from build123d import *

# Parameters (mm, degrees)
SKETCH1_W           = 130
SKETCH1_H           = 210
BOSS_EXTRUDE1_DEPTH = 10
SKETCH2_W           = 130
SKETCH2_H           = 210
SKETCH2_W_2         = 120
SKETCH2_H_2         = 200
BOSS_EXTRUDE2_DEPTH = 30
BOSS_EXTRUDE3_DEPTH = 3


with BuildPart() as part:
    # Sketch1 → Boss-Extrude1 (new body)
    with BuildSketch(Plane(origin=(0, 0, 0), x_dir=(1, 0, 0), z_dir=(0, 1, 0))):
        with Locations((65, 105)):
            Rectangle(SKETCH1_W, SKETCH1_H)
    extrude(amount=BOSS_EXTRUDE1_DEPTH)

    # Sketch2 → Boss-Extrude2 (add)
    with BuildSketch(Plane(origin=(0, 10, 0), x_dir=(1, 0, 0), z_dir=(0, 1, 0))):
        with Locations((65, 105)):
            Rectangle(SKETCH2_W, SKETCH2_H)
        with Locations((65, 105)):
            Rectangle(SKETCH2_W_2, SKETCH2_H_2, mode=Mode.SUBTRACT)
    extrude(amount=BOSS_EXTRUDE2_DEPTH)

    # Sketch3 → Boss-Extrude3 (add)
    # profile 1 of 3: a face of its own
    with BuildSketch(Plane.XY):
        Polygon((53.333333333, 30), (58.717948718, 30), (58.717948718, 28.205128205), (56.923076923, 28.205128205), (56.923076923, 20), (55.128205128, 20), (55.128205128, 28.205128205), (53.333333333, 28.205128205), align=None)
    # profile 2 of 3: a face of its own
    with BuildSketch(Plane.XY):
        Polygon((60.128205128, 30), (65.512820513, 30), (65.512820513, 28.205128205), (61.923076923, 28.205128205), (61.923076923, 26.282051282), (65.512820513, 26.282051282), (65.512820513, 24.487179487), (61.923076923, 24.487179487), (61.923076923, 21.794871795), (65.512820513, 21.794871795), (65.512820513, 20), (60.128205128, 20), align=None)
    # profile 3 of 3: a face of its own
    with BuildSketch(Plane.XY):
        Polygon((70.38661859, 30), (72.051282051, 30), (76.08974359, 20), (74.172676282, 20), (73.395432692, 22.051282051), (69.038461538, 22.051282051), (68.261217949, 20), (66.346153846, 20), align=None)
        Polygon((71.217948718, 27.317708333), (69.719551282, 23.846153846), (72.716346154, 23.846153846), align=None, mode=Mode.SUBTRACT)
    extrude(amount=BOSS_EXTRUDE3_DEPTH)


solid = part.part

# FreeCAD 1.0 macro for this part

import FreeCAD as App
import Part
import Sketcher
Q = App.Units.Quantity


def add_polygon(sketch, points):
    """Adds a closed chain of lines whose ends are joined by coincident constraints."""
    first, n = sketch.GeometryCount, len(points)
    for a, b in zip(points, points[1:] + points[:1]):
        sketch.addGeometry(Part.LineSegment(App.Vector(*a, 0), App.Vector(*b, 0)), False)
    for i in range(n):
        sketch.addConstraint(Sketcher.Constraint("Coincident", first + i, 2, first + (i + 1) % n, 1))

doc = App.newDocument("Part")
params = doc.addObject("Spreadsheet::Sheet", "Params")
for row, (alias, value) in enumerate([
    ("sketch1_width", "130 mm"),
    ("sketch1_height", "210 mm"),
    ("pad1_length", "10 mm"),
    ("sketch2_width", "130 mm"),
    ("sketch2_width2", "120 mm"),
    ("sketch2_height", "210 mm"),
    ("sketch2_height2", "200 mm"),
    ("pad2_length", "30 mm"),
    ("sketch3_height", "10 mm"),
    ("pad3_length", "3 mm"),
], start=1):
    params.set(f"A{row}", alias)
    params.set(f"B{row}", "=" + value)
    params.setAlias(f"B{row}", alias)

body = doc.addObject("PartDesign::Body", "Body")

sketch1 = body.newObject("Sketcher::SketchObject", "Sketch")
sketch1.AttachmentSupport = (doc.getObject("XZ_Plane"), [""])
sketch1.MapMode = "FlatFace"
add_polygon(sketch1, [(0, -210), (0, 0), (130, 0), (130, -210)])
sketch1.addConstraint([
    Sketcher.Constraint("Vertical", 0),
    Sketcher.Constraint("Horizontal", 1),
    Sketcher.Constraint("Vertical", 2),
    Sketcher.Constraint("Horizontal", 3),
    Sketcher.Constraint("Coincident", 0, 2, -1, 1),
    Sketcher.Constraint("DistanceX", 1, 1, 1, 2, Q("130 mm")),
    Sketcher.Constraint("DistanceY", 0, 1, 0, 2, Q("210 mm")),
])
sketch1.setExpression("Constraints[9]", "Params.sketch1_width")
sketch1.setExpression("Constraints[10]", "Params.sketch1_height")
pad1 = body.newObject("PartDesign::Pad", "Pad")
pad1.Profile = sketch1
pad1.setExpression("Length", "Params.pad1_length")
pad1.Reversed = True

sketch2 = body.newObject("Sketcher::SketchObject", "Sketch001")
sketch2.AttachmentSupport = (doc.getObject("XZ_Plane"), [""])
sketch2.MapMode = "FlatFace"
sketch2.AttachmentOffset = App.Placement(App.Vector(0, 0, -10), App.Rotation())
add_polygon(sketch2, [(0, -210), (0, 0), (130, 0), (130, -210)])
add_polygon(sketch2, [(125, -5), (5, -5), (5, -205), (125, -205)])
sketch2.addConstraint([
    Sketcher.Constraint("Vertical", 0),
    Sketcher.Constraint("Horizontal", 1),
    Sketcher.Constraint("Vertical", 2),
    Sketcher.Constraint("Horizontal", 3),
    Sketcher.Constraint("Horizontal", 4),
    Sketcher.Constraint("Vertical", 5),
    Sketcher.Constraint("Horizontal", 6),
    Sketcher.Constraint("Vertical", 7),
    Sketcher.Constraint("Coincident", 0, 2, -1, 1),
    Sketcher.Constraint("DistanceX", 1, 1, 1, 2, Q("130 mm")),
    Sketcher.Constraint("DistanceX", 4, 2, 4, 1, Q("120 mm")),
    Sketcher.Constraint("DistanceY", 0, 1, 0, 2, Q("210 mm")),
    Sketcher.Constraint("DistanceY", 5, 2, 5, 1, Q("200 mm")),
    Sketcher.Constraint("DistanceX", -1, 1, 4, 2, Q("5 mm")),
    Sketcher.Constraint("DistanceY", 4, 2, -1, 1, Q("5 mm")),
])
sketch2.setExpression("Constraints[17]", "Params.sketch2_width")
sketch2.setExpression("Constraints[18]", "Params.sketch2_width2")
sketch2.setExpression("Constraints[19]", "Params.sketch2_height")
sketch2.setExpression("Constraints[20]", "Params.sketch2_height2")
pad2 = body.newObject("PartDesign::Pad", "Pad001")
pad2.Profile = sketch2
pad2.setExpression("Length", "Params.pad2_length")
pad2.Reversed = True

sketch3 = body.newObject("Sketcher::SketchObject", "Sketch002")
sketch3.AttachmentSupport = (doc.getObject("XY_Plane"), [""])
sketch3.MapMode = "FlatFace"
add_polygon(sketch3, [(58.7, 30), (53.3, 30), (53.3, 28.2), (55.1, 28.2), (55.1, 20), (56.9, 20), (56.9, 28.2), (58.7, 28.2)])
add_polygon(sketch3, [(65.5, 30), (60.1, 30), (60.1, 20), (65.5, 20), (65.5, 21.8), (61.9, 21.8), (61.9, 24.5), (65.5, 24.5), (65.5, 26.3), (61.9, 26.3), (61.9, 28.2), (65.5, 28.2)])
add_polygon(sketch3, [(72.1, 30), (70.4, 30), (66.3, 20), (68.3, 20), (69, 22.1), (73.4, 22.1), (74.2, 20), (76.1, 20)])
add_polygon(sketch3, [(71.2, 27.3), (72.7, 23.8), (69.7, 23.8)])
sketch3.addConstraint([
    Sketcher.Constraint("Horizontal", 0),
    Sketcher.Constraint("Vertical", 1),
    Sketcher.Constraint("Horizontal", 2),
    Sketcher.Constraint("Vertical", 3),
    Sketcher.Constraint("Horizontal", 4),
    Sketcher.Constraint("Vertical", 5),
    Sketcher.Constraint("Horizontal", 6),
    Sketcher.Constraint("Vertical", 7),
    Sketcher.Constraint("Horizontal", 8),
    Sketcher.Constraint("Vertical", 9),
    Sketcher.Constraint("Horizontal", 10),
    Sketcher.Constraint("Vertical", 11),
    Sketcher.Constraint("Horizontal", 12),
    Sketcher.Constraint("Vertical", 13),
    Sketcher.Constraint("Horizontal", 14),
    Sketcher.Constraint("Vertical", 15),
    Sketcher.Constraint("Horizontal", 16),
    Sketcher.Constraint("Vertical", 17),
    Sketcher.Constraint("Horizontal", 18),
    Sketcher.Constraint("Vertical", 19),
    Sketcher.Constraint("Horizontal", 20),
    Sketcher.Constraint("Horizontal", 22),
    Sketcher.Constraint("Horizontal", 24),
    Sketcher.Constraint("Horizontal", 26),
    Sketcher.Constraint("Horizontal", 29),
    Sketcher.Constraint("Horizontal", 2, 2, 5, 2),
    Sketcher.Constraint("Horizontal", 7, 2, 8, 2),
    Sketcher.Constraint("Horizontal", 4, 2, 9, 2),
    Sketcher.Constraint("Horizontal", 6, 2, 17, 2),
    Sketcher.Constraint("Horizontal", 19, 2, 20, 2),
    Sketcher.Constraint("Horizontal", 10, 2, 21, 2),
    Sketcher.Constraint("Horizontal", 22, 2, 25, 2),
    Sketcher.Constraint("Vertical", 11, 2, 14, 2),
    Sketcher.Constraint("Vertical", 13, 2, 16, 2),
    Sketcher.Constraint("Vertical", 15, 2, 18, 2),
    Sketcher.Constraint("Equal", 2, 4),
    Sketcher.Constraint("Equal", 4, 6),
    Sketcher.Constraint("Equal", 0, 8),
    Sketcher.Constraint("Equal", 6, 1),
    Sketcher.Constraint("Equal", 7, 11),
    Sketcher.Constraint("Equal", 11, 15),
    Sketcher.Constraint("Equal", 23, 25),
    Sketcher.Constraint("Equal", 28, 30),
    Sketcher.Constraint("DistanceY", 9, 2, 9, 1, Q("10 mm")),
    Sketcher.Constraint("DistanceY", -1, 1, 0, 2, Q("30 mm")),
    Sketcher.Constraint("DistanceX", 2, 2, 8, 2, Q("5 mm")),
    Sketcher.Constraint("DistanceX", 4, 2, 12, 2, Q("5 mm")),
    Sketcher.Constraint("DistanceX", 2, 1, 2, 2, Q("1.794872 mm")),
    Sketcher.Constraint("DistanceX", 24, 1, 24, 2, Q("4.356971 mm")),
    Sketcher.Constraint("DistanceX", 19, 2, 20, 2, Q("4.873798 mm")),
    Sketcher.Constraint("DistanceX", 20, 2, 20, 1, Q("1.664663 mm")),
    Sketcher.Constraint("DistanceX", 22, 1, 22, 2, Q("1.915064 mm")),
    Sketcher.Constraint("DistanceX", 26, 1, 26, 2, Q("1.917067 mm")),
    Sketcher.Constraint("DistanceX", 29, 2, 29, 1, Q("2.996795 mm")),
    Sketcher.Constraint("DistanceY", 13, 1, 13, 2, Q("2.692308 mm")),
    Sketcher.Constraint("DistanceX", -1, 1, 6, 2, Q("58.717949 mm")),
    Sketcher.Constraint("DistanceX", -1, 1, 23, 2, Q("69.038462 mm")),
    Sketcher.Constraint("DistanceX", -1, 1, 29, 2, Q("69.719551 mm")),
    Sketcher.Constraint("DistanceY", -1, 1, 30, 2, Q("27.317708 mm")),
    Sketcher.Constraint("DistanceX", 9, 2, 21, 2, Q("6.217949 mm")),
    Sketcher.Constraint("DistanceY", 11, 2, 23, 2, Q("0.25641 mm")),
    Sketcher.Constraint("DistanceY", 24, 2, 28, 2, Q("1.794872 mm")),
])
sketch3.setExpression("Constraints[74]", "Params.sketch3_height")
pad3 = body.newObject("PartDesign::Pad", "Pad002")
pad3.Profile = sketch3
pad3.setExpression("Length", "Params.pad3_length")

doc.recompute()
